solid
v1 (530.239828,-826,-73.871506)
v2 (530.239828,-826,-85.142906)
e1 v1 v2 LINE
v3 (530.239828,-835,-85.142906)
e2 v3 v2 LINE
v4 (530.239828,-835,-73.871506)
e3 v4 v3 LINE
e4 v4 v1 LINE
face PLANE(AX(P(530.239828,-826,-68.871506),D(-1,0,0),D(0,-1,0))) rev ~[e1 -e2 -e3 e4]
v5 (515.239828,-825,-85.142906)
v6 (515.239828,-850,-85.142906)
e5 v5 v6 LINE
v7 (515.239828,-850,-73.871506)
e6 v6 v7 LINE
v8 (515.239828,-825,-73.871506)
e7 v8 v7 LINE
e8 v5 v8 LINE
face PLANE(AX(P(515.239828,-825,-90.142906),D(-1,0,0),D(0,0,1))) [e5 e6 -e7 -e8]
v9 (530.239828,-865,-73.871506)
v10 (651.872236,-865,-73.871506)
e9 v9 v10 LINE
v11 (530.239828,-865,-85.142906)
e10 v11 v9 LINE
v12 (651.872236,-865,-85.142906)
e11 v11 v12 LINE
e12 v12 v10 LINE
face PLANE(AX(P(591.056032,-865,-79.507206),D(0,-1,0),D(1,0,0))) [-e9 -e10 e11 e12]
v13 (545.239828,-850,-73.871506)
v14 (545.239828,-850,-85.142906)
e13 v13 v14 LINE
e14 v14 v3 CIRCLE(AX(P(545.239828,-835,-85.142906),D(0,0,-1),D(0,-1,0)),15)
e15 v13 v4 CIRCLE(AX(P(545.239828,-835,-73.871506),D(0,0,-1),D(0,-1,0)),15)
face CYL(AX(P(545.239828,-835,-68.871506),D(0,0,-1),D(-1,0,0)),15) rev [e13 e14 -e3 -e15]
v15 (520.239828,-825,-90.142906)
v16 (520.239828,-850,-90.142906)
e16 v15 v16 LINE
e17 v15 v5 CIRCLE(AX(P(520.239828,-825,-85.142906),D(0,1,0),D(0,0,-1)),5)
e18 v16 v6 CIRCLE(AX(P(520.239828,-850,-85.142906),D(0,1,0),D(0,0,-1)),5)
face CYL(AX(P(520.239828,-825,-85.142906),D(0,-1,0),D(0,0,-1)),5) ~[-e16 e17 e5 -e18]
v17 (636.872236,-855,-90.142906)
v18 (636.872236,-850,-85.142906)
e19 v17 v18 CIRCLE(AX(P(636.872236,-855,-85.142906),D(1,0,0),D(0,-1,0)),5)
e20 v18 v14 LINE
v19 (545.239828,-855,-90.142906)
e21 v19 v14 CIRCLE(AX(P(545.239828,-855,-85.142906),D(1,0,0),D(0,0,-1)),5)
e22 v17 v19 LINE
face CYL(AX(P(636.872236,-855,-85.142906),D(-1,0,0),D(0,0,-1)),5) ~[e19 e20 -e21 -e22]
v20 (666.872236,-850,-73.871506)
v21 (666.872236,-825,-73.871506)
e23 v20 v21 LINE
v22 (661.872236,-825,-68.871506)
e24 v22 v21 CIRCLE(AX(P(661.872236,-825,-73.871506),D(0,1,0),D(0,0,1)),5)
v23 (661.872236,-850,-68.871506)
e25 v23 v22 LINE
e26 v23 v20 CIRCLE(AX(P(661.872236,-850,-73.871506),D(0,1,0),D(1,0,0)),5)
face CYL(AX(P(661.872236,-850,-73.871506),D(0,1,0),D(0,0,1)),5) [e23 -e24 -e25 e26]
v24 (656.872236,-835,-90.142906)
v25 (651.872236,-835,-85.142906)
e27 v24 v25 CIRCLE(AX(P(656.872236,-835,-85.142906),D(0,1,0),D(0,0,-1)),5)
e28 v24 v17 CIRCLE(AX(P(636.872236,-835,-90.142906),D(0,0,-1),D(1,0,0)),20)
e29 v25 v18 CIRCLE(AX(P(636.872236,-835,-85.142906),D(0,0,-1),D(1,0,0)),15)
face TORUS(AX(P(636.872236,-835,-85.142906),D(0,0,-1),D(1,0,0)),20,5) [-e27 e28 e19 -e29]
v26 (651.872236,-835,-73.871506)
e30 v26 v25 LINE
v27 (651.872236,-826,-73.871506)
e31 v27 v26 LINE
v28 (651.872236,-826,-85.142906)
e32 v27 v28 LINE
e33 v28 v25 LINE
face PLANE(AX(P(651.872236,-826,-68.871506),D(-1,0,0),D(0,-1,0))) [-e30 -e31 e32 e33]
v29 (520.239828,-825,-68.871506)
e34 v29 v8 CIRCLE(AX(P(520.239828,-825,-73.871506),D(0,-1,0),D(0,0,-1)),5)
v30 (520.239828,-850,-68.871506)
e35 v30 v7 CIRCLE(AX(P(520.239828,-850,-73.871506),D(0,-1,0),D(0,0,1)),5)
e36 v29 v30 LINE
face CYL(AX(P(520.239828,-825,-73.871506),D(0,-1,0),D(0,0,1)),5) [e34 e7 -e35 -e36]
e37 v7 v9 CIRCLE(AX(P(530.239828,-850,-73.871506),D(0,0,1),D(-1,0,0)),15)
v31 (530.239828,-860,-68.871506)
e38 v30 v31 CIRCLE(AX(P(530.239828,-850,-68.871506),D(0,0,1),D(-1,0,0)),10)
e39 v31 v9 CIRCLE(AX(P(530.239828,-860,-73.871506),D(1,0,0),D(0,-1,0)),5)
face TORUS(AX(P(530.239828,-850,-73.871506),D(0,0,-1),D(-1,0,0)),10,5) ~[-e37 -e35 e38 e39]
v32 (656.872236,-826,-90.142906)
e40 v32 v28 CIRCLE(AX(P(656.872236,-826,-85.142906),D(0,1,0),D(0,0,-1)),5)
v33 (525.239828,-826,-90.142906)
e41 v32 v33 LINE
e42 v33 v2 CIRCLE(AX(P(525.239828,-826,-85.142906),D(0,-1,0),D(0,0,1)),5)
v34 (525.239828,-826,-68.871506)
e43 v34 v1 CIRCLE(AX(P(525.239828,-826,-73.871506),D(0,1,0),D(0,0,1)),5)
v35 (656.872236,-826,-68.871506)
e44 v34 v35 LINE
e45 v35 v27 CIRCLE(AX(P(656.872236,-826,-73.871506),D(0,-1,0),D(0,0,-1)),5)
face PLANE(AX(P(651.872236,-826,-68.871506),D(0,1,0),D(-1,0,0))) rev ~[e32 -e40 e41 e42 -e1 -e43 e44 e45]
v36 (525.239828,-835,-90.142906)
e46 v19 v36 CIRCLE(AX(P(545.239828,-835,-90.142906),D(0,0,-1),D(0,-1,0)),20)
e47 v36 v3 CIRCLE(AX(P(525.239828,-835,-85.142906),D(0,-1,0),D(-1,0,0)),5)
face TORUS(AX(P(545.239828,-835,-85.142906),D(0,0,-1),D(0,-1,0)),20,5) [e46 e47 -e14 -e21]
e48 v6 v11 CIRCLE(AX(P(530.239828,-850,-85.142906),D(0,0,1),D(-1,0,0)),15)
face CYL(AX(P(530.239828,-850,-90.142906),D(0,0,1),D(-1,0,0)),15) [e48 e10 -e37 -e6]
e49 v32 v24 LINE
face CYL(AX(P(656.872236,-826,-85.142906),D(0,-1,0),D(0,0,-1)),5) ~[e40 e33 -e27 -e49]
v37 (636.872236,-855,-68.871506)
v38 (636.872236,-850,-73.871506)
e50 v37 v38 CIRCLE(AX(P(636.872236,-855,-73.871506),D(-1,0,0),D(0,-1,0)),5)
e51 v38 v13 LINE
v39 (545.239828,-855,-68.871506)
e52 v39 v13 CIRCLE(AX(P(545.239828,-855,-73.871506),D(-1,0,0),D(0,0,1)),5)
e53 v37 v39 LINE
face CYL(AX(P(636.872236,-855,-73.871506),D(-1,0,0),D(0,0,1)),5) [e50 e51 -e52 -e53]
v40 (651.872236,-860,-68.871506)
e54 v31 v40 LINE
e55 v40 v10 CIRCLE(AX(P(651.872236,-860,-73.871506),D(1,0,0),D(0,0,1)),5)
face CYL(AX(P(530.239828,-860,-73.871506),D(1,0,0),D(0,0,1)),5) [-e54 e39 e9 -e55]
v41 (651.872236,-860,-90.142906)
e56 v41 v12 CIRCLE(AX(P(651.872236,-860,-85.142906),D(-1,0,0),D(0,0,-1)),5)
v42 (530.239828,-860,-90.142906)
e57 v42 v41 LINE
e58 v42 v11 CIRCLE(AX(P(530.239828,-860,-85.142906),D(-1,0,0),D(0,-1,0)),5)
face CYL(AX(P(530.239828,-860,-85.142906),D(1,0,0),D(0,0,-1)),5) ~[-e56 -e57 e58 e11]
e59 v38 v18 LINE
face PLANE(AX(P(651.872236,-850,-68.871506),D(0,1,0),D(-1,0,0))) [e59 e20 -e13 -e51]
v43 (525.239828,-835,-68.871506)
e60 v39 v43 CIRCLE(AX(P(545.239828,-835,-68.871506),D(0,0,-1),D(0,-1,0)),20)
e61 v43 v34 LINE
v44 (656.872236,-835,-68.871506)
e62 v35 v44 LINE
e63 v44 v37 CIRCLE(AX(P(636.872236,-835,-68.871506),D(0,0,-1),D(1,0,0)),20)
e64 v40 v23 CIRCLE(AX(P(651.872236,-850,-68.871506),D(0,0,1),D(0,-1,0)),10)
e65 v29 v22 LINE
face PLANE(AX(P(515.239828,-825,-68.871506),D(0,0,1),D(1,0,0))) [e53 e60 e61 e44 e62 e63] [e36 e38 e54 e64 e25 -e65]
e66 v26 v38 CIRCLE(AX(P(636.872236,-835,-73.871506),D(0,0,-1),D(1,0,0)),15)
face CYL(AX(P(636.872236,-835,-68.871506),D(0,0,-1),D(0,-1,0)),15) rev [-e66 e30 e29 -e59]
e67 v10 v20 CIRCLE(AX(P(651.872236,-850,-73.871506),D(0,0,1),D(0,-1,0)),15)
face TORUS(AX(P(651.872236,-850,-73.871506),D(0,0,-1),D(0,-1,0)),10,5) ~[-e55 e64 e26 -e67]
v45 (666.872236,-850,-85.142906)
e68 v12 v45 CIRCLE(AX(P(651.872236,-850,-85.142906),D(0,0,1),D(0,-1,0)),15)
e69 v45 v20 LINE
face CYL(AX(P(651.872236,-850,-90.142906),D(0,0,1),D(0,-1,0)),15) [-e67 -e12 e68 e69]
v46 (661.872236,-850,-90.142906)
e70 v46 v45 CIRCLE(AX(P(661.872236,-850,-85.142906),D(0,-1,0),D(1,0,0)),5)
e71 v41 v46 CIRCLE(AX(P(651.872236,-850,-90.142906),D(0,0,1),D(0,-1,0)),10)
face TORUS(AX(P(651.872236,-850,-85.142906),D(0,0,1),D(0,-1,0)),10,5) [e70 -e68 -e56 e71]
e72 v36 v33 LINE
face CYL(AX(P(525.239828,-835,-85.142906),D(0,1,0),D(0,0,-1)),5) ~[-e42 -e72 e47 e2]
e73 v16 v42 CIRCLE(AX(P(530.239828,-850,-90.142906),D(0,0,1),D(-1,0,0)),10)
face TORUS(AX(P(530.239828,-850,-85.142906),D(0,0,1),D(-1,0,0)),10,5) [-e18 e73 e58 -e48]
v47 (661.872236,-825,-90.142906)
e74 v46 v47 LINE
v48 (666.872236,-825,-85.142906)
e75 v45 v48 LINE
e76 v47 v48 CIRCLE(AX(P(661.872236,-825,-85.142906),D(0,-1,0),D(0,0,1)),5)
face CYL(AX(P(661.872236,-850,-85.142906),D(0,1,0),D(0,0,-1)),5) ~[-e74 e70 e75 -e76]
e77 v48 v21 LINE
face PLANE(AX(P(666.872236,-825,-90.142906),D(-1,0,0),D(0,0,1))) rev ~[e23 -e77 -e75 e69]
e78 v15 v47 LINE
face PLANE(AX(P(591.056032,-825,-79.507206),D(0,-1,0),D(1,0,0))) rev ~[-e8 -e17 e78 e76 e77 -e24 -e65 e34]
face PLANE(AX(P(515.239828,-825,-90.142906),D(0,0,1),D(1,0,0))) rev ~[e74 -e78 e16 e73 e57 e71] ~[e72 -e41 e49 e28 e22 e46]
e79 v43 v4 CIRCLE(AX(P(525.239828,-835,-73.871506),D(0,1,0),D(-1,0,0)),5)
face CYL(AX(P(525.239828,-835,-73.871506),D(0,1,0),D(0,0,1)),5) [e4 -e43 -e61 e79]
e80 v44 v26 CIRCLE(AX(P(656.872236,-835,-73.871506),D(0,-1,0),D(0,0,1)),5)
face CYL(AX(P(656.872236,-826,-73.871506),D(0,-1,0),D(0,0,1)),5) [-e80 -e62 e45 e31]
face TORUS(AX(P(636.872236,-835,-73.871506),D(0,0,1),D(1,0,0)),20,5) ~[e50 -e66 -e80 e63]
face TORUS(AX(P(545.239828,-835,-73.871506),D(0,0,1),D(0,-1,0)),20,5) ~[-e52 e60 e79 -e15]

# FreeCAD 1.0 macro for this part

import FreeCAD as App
import Part
import Sketcher
from FreeCAD import Vector


def edges_at(feature, points):
    """Names of the edges that pass closest to the given points."""
    edges = feature.Shape.Edges
    near = lambda p: min(range(len(edges)), key=lambda i: edges[i].distToShape(Part.Vertex(*p))[0])
    return sorted({f"Edge{near(p) + 1}" for p in points})


def add_polygon(sketch, points):
    """Adds a closed chain of lines whose ends are joined by coincident constraints."""
    first, n = sketch.GeometryCount, len(points)
    for a, b in zip(points, points[1:] + points[:1]):
        sketch.addGeometry(Part.LineSegment(App.Vector(*a, 0), App.Vector(*b, 0)), False)
    for i in range(n):
        sketch.addConstraint(Sketcher.Constraint("Coincident", first + i, 2, first + (i + 1) % n, 1))

doc = App.newDocument("Part")
body = doc.addObject("PartDesign::Body", "Body")

# Sketch on XZ plane
sketch1 = body.newObject("Sketcher::SketchObject", "Sketch")
sketch1.AttachmentSupport = (doc.getObject("XZ_Plane"), [""])
sketch1.MapMode = "FlatFace"
sketch1.AttachmentOffset = App.Placement(Vector(0, 0, 825), App.Rotation())
add_polygon(sketch1, [(515.239828, -68.871506), (515.239828, -90.142906), (666.872236, -90.142906), (666.872236, -68.871506)])  # lines 0-3
sketch1.addConstraint(Sketcher.Constraint("Vertical", 0))
sketch1.addConstraint(Sketcher.Constraint("Horizontal", 1))
sketch1.addConstraint(Sketcher.Constraint("Vertical", 2))
sketch1.addConstraint(Sketcher.Constraint("Horizontal", 3))
sketch1.addConstraint(Sketcher.Constraint("DistanceY", 0, 2, 0, 1, 21.2714))
sketch1.addConstraint(Sketcher.Constraint("DistanceX", 1, 1, 1, 2, 151.632409))
sketch1.addConstraint(Sketcher.Constraint("DistanceX", -1, 1, 0, 2, 515.239828))
sketch1.addConstraint(Sketcher.Constraint("DistanceY", 0, 2, -1, 1, 90.142906))
pad1 = body.newObject("PartDesign::Pad", "Pad")
pad1.Profile = sketch1
pad1.Length = 40

# Sketch on XY plane
sketch2 = body.newObject("Sketcher::SketchObject", "Sketch001")
sketch2.AttachmentSupport = (doc.getObject("XY_Plane"), [""])
sketch2.MapMode = "FlatFace"
sketch2.AttachmentOffset = App.Placement(Vector(0, 0, -68.871506), App.Rotation())
add_polygon(sketch2, [(651.872236, -850), (651.872236, -826), (530.239828, -826), (530.239828, -850)])  # lines 0-3
sketch2.addConstraint(Sketcher.Constraint("Vertical", 0))
sketch2.addConstraint(Sketcher.Constraint("Horizontal", 1))
sketch2.addConstraint(Sketcher.Constraint("Vertical", 2))
sketch2.addConstraint(Sketcher.Constraint("Horizontal", 3))
sketch2.addConstraint(Sketcher.Constraint("DistanceY", 0, 1, 0, 2, 24.0))
sketch2.addConstraint(Sketcher.Constraint("DistanceY", 0, 2, -1, 1, 826.0))
sketch2.addConstraint(Sketcher.Constraint("DistanceX", 1, 2, 1, 1, 121.632409))
sketch2.addConstraint(Sketcher.Constraint("DistanceX", -1, 1, 0, 2, 651.872236))
pocket1 = body.newObject("PartDesign::Pocket", "Pocket")
pocket1.Profile = sketch2
pocket1.Type = "ThroughAll"
doc.recompute()

fillet = body.newObject("PartDesign::Fillet", "Fillet")
fillet.Base = (pocket1, edges_at(pocket1, [
    (515.24, -865, -79.507),
    (666.872, -865, -79.507),
    (651.872, -850, -79.507),
    (530.24, -850, -79.507),
]))
fillet.Radius = 15
doc.recompute()

fillet2 = body.newObject("PartDesign::Fillet", "Fillet001")
fillet2.Base = (fillet, edges_at(fillet, [
    (591.056, -850, -68.872),
    (591.056, -850, -90.143),
    (591.056, -865, -68.872),
    (591.056, -865, -90.143),
]))
fillet2.Radius = 5

doc.recompute()
